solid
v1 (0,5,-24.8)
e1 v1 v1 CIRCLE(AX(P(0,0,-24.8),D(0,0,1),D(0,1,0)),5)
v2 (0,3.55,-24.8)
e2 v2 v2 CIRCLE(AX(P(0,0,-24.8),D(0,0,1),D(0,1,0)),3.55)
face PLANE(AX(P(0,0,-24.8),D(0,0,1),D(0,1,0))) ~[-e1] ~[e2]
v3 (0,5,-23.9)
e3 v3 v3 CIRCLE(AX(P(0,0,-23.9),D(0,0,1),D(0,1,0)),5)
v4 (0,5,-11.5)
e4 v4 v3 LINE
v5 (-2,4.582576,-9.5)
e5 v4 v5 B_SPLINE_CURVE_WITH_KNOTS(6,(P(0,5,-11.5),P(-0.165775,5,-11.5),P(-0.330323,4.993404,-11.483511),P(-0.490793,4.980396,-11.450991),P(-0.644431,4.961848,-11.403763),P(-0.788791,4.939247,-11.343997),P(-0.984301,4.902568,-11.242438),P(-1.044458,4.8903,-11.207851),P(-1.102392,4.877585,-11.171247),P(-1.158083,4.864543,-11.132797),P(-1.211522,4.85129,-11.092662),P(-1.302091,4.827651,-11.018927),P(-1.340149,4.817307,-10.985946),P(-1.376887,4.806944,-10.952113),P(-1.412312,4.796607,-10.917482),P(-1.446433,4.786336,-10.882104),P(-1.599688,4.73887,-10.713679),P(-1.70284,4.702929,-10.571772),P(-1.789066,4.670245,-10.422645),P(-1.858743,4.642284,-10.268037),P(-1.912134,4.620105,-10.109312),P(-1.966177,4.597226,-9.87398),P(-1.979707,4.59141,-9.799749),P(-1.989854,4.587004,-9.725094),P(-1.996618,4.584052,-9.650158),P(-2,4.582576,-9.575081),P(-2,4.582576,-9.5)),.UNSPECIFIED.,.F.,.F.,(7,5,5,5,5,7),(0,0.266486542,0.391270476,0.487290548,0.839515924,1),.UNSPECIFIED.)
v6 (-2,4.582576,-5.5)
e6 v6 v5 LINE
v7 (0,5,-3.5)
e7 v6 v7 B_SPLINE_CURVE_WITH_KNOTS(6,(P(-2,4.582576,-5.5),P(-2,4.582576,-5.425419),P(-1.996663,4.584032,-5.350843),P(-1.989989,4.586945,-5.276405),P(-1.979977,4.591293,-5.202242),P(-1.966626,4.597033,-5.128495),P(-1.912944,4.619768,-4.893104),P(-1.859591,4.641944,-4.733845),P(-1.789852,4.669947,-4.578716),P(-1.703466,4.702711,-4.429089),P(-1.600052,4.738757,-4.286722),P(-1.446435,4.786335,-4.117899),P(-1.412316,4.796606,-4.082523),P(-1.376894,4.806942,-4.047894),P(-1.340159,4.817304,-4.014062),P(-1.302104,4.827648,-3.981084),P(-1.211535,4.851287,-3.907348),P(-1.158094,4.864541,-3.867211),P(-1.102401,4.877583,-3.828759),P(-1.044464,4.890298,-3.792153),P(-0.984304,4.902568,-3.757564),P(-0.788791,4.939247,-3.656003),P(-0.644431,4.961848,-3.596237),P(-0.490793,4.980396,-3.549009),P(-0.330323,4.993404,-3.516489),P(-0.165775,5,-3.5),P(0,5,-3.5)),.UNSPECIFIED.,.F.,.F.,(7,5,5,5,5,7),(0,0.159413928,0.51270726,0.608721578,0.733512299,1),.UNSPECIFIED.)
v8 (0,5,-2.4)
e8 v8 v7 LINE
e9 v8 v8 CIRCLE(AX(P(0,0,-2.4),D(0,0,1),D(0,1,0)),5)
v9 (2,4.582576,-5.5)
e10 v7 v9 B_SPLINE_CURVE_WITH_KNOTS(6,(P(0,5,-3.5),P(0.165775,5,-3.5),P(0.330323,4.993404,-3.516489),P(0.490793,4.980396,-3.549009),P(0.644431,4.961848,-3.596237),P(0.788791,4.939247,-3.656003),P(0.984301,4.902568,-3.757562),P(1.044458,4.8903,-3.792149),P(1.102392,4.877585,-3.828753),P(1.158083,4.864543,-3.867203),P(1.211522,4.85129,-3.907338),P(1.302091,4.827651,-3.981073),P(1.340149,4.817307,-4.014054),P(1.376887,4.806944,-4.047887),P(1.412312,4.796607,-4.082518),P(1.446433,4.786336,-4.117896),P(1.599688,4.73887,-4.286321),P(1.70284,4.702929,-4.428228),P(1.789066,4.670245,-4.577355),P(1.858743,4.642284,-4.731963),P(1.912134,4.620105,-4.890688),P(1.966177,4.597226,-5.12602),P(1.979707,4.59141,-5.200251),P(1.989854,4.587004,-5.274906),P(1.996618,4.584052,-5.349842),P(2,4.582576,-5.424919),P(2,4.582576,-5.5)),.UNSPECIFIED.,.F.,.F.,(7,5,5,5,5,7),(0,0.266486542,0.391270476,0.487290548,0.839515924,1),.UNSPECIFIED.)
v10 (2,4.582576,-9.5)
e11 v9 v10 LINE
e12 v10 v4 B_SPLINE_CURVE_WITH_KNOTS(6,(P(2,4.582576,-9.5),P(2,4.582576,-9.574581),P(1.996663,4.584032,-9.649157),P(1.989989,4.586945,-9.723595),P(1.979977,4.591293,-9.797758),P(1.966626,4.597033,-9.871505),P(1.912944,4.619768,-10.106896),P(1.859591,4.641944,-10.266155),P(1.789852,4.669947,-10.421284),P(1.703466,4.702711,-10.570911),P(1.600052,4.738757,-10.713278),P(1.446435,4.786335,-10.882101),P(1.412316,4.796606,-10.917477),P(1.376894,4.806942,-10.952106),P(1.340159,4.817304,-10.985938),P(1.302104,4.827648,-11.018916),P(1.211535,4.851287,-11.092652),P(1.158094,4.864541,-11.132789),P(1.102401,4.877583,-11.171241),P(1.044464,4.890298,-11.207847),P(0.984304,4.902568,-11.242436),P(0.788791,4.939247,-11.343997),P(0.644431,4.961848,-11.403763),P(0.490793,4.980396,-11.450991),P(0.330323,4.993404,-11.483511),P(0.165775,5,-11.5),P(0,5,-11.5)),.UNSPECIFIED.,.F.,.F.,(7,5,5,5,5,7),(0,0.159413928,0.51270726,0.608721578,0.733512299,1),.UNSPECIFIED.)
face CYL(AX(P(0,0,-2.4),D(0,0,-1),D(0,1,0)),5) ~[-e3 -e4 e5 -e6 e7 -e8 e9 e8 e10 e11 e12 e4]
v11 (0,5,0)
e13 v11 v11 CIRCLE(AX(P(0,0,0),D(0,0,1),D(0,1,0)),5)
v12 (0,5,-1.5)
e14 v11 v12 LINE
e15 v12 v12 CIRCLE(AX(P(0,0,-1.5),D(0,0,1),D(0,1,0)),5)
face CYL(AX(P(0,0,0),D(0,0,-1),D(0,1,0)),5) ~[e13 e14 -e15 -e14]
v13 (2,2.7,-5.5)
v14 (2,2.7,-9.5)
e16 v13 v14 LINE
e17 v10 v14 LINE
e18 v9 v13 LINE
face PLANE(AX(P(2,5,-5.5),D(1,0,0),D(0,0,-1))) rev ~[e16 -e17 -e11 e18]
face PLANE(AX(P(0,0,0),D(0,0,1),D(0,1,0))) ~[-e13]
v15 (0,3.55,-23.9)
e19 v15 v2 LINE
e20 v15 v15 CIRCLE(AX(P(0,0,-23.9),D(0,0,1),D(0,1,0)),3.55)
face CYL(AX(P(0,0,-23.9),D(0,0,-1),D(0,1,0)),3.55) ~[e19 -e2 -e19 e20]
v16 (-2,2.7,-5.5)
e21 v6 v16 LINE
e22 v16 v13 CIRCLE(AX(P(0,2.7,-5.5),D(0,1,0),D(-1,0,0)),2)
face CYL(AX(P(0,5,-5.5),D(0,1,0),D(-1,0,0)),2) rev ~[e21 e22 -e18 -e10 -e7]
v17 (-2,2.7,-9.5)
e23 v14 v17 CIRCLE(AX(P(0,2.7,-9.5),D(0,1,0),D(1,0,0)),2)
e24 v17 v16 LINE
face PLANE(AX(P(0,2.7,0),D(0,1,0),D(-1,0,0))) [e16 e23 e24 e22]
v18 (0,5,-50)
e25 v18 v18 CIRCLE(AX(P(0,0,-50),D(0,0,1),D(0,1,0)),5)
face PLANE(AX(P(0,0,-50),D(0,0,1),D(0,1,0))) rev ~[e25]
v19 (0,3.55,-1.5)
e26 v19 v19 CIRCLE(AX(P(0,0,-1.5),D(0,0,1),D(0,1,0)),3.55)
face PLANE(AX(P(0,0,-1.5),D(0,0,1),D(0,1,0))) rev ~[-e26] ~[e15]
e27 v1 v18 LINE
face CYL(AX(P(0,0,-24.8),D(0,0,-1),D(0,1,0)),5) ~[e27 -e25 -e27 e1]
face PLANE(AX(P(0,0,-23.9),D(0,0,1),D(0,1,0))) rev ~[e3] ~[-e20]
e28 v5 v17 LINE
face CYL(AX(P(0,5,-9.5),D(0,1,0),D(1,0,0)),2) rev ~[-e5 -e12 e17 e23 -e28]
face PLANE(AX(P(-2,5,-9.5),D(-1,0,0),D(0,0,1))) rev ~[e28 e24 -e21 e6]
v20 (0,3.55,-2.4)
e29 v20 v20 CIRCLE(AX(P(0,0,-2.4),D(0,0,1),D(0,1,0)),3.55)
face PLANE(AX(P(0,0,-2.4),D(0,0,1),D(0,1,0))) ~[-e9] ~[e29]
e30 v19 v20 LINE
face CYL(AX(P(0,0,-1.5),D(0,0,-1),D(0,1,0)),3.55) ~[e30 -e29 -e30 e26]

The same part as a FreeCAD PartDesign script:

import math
import FreeCAD as App
import Part
import Sketcher

V = App.Vector

doc = App.newDocument("Part")
params = doc.addObject("Spreadsheet::Sheet", "Params")
for row, (alias, value) in enumerate([
    ("sketch1_height", "50 mm"),
    ("sketch1_height2", "0.9 mm"),
    ("sketch1_height3", "1.5 mm"),
    ("sketch1_width", "5 mm"),
    ("sketch1_height4", "25.2 mm"),
    ("revolution_angle", "360 deg"),
    ("sketch2_radius", "2 mm"),
    ("sketch2_height", "4 mm"),
    ("pocket1_length", "2.3 mm"),
], start=1):
    params.set(f"A{row}", alias)
    params.set(f"B{row}", "=" + value)
    params.setAlias(f"B{row}", alias)

body = doc.addObject("PartDesign::Body", "Body")

sketch1 = body.newObject("Sketcher::SketchObject", "Sketch")
sketch1.AttachmentSupport = (doc.getObject("YZ_Plane"), [""])
sketch1.MapMode = "FlatFace"
sketch1.addGeometry(Part.LineSegment(V(5, 0, 0), V(0, 0, 0)), False)
sketch1.addGeometry(Part.LineSegment(V(0, 0, 0), V(0, -50, 0)), False)
sketch1.addGeometry(Part.LineSegment(V(0, -50, 0), V(5, -50, 0)), False)
sketch1.addGeometry(Part.LineSegment(V(5, -50, 0), V(5, -24.8, 0)), False)
sketch1.addGeometry(Part.LineSegment(V(5, -24.8, 0), V(3.5, -24.8, 0)), False)
sketch1.addGeometry(Part.LineSegment(V(3.5, -24.8, 0), V(3.5, -23.9, 0)), False)
sketch1.addGeometry(Part.LineSegment(V(3.5, -23.9, 0), V(5, -23.9, 0)), False)
sketch1.addGeometry(Part.LineSegment(V(5, -23.9, 0), V(5, -2.4, 0)), False)
sketch1.addGeometry(Part.LineSegment(V(5, -2.4, 0), V(3.5, -2.4, 0)), False)
sketch1.addGeometry(Part.LineSegment(V(3.5, -2.4, 0), V(3.5, -1.5, 0)), False)
sketch1.addGeometry(Part.LineSegment(V(3.5, -1.5, 0), V(5, -1.5, 0)), False)
sketch1.addGeometry(Part.LineSegment(V(5, -1.5, 0), V(5, 0, 0)), False)
sketch1.addConstraint(Sketcher.Constraint("Coincident", 0, 2, 1, 1))
sketch1.addConstraint(Sketcher.Constraint("Coincident", 1, 2, 2, 1))
sketch1.addConstraint(Sketcher.Constraint("Coincident", 2, 2, 3, 1))
sketch1.addConstraint(Sketcher.Constraint("Coincident", 3, 2, 4, 1))
sketch1.addConstraint(Sketcher.Constraint("Coincident", 4, 2, 5, 1))
sketch1.addConstraint(Sketcher.Constraint("Coincident", 5, 2, 6, 1))
sketch1.addConstraint(Sketcher.Constraint("Coincident", 6, 2, 7, 1))
sketch1.addConstraint(Sketcher.Constraint("Coincident", 7, 2, 8, 1))
sketch1.addConstraint(Sketcher.Constraint("Coincident", 8, 2, 9, 1))
sketch1.addConstraint(Sketcher.Constraint("Coincident", 9, 2, 10, 1))
sketch1.addConstraint(Sketcher.Constraint("Coincident", 10, 2, 11, 1))
sketch1.addConstraint(Sketcher.Constraint("Coincident", 11, 2, 0, 1))
sketch1.addConstraint(Sketcher.Constraint("Horizontal", 0))
sketch1.addConstraint(Sketcher.Constraint("Vertical", 1))
sketch1.addConstraint(Sketcher.Constraint("Horizontal", 2))
sketch1.addConstraint(Sketcher.Constraint("Vertical", 3))
sketch1.addConstraint(Sketcher.Constraint("Horizontal", 4))
sketch1.addConstraint(Sketcher.Constraint("Vertical", 5))
sketch1.addConstraint(Sketcher.Constraint("Horizontal", 6))
sketch1.addConstraint(Sketcher.Constraint("Vertical", 7))
sketch1.addConstraint(Sketcher.Constraint("Horizontal", 8))
sketch1.addConstraint(Sketcher.Constraint("Vertical", 9))
sketch1.addConstraint(Sketcher.Constraint("Horizontal", 10))
sketch1.addConstraint(Sketcher.Constraint("Vertical", 11))
sketch1.addConstraint(Sketcher.Constraint("Coincident", 0, 2, -1, 1))
sketch1.addConstraint(Sketcher.Constraint("Vertical", 3, 2, 6, 2))
sketch1.addConstraint(Sketcher.Constraint("Vertical", 5, 2, 8, 2))
sketch1.addConstraint(Sketcher.Constraint("Vertical", 7, 2, 10, 2))
sketch1.addConstraint(Sketcher.Constraint("Equal", 5, 9))
sketch1.addConstraint(Sketcher.Constraint("DistanceY", 1, 2, 1, 1, 50.0))
sketch1.addConstraint(Sketcher.Constraint("DistanceY", 5, 1, 5, 2, 0.9))
sketch1.addConstraint(Sketcher.Constraint("DistanceY", 11, 1, 11, 2, 1.5))
sketch1.addConstraint(Sketcher.Constraint("DistanceX", 0, 2, 0, 1, 5.0))
sketch1.addConstraint(Sketcher.Constraint("DistanceY", 3, 1, 3, 2, 25.2))
sketch1.addConstraint(Sketcher.Constraint("DistanceX", 4, 2, 4, 1, 1.45))
sketch1.setExpression("Constraints[29]", "Params.sketch1_height")
sketch1.setExpression("Constraints[30]", "Params.sketch1_height2")
sketch1.setExpression("Constraints[31]", "Params.sketch1_height3")
sketch1.setExpression("Constraints[32]", "Params.sketch1_width")
sketch1.setExpression("Constraints[33]", "Params.sketch1_height4")
revolution = body.newObject("PartDesign::Revolution", "Revolution")
revolution.Profile = sketch1
revolution.ReferenceAxis = (sketch1, ["V_Axis"])
revolution.setExpression("Angle", "Params.revolution_angle")

sketch2 = body.newObject("Sketcher::SketchObject", "Sketch001")
sketch2.AttachmentSupport = (doc.getObject("XZ_Plane"), [""])
sketch2.MapMode = "FlatFace"
sketch2.AttachmentOffset = App.Placement(V(0, 0, -5), App.Rotation())
sketch2.addGeometry(Part.ArcOfCircle(Part.Circle(V(0, -5.5, 0), V(0, 0, 1), 2), math.radians(0), math.radians(180)), False)
sketch2.addGeometry(Part.LineSegment(V(2, -5.5, 0), V(2, -9.5, 0)), False)
sketch2.addGeometry(Part.ArcOfCircle(Part.Circle(V(0, -9.5, 0), V(0, 0, 1), 2), math.radians(180), math.radians(360)), False)
sketch2.addGeometry(Part.LineSegment(V(-2, -9.5, 0), V(-2, -5.5, 0)), False)
sketch2.addConstraint(Sketcher.Constraint("Tangent", 0, 1, 1, 1))
sketch2.addConstraint(Sketcher.Constraint("Tangent", 1, 2, 2, 2))
sketch2.addConstraint(Sketcher.Constraint("Tangent", 2, 1, 3, 1))
sketch2.addConstraint(Sketcher.Constraint("Tangent", 3, 2, 0, 2))
sketch2.addConstraint(Sketcher.Constraint("Vertical", 1))
sketch2.addConstraint(Sketcher.Constraint("Vertical", 3))
sketch2.addConstraint(Sketcher.Constraint("PointOnObject", 0, 3, -2))
sketch2.addConstraint(Sketcher.Constraint("Radius", 0, 2.0))
sketch2.addConstraint(Sketcher.Constraint("DistanceY", 1, 2, 1, 1, 4.0))
sketch2.addConstraint(Sketcher.Constraint("DistanceY", 0, 3, -1, 1, 5.5))
sketch2.setExpression("Constraints[7]", "Params.sketch2_radius")
sketch2.setExpression("Constraints[8]", "Params.sketch2_height")
pocket1 = body.newObject("PartDesign::Pocket", "Pocket")
pocket1.Profile = sketch2
pocket1.setExpression("Length", "Params.pocket1_length")
pocket1.Reversed = True

doc.recompute()
